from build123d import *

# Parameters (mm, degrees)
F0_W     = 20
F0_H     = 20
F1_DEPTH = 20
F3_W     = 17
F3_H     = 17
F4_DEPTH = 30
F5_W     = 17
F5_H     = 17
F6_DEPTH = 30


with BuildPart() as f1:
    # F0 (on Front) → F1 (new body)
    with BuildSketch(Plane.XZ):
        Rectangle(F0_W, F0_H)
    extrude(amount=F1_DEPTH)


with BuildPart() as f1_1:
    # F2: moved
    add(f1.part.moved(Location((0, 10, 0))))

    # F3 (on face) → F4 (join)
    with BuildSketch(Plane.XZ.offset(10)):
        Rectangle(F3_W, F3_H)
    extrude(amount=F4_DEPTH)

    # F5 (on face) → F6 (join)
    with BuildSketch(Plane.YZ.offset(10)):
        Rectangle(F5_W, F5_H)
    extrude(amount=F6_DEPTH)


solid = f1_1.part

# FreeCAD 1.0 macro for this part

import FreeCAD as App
import Part
import Sketcher
from FreeCAD import Vector
Q = App.Units.Quantity

doc = App.newDocument("Part")
body = doc.addObject("PartDesign::Body", "Body")

# Sketch on XZ plane
sketch1 = body.newObject("Sketcher::SketchObject", "Sketch")
sketch1.AttachmentSupport = (doc.getObject("XZ_Plane"), [""])
sketch1.MapMode = "FlatFace"
sketch1.addGeometry([
    Part.LineSegment(Vector(-10, 10, 0), Vector(-10, -10, 0)),
    Part.LineSegment(Vector(-10, -10, 0), Vector(10, -10, 0)),
    Part.LineSegment(Vector(10, -10, 0), Vector(10, 10, 0)),
    Part.LineSegment(Vector(10, 10, 0), Vector(-10, 10, 0)),
], False)
sketch1.addConstraint([
    Sketcher.Constraint("Coincident", 0, 2, 1, 1),
    Sketcher.Constraint("Coincident", 1, 2, 2, 1),
    Sketcher.Constraint("Coincident", 2, 2, 3, 1),
    Sketcher.Constraint("Coincident", 3, 2, 0, 1),
    Sketcher.Constraint("Vertical", 0),
    Sketcher.Constraint("Horizontal", 1),
    Sketcher.Constraint("Vertical", 2),
    Sketcher.Constraint("Horizontal", 3),
    Sketcher.Constraint("Symmetric", 0, 2, 2, 2, -1, 1),
    Sketcher.Constraint("Equal", 3, 0),
    Sketcher.Constraint("DistanceX", 1, 1, 1, 2, Q("20 mm")),
])
pad1 = body.newObject("PartDesign::Pad", "Pad")
pad1.Profile = sketch1
pad1.Length = 20
body2 = doc.addObject("PartDesign::Body", "Body001")
doc.recompute()

body.Placement = App.Placement(Vector(0, 10, 0), App.Rotation(Vector(0, 0, 1), 0))
boolean = body2.newObject("PartDesign::Boolean", "Boolean")
boolean.Type = "Fuse"
boolean.addObjects([body])

# Sketch on XZ plane
sketch2 = body2.newObject("Sketcher::SketchObject", "Sketch001")
sketch2.AttachmentSupport = (doc.getObject("XZ_Plane001"), [""])
sketch2.MapMode = "FlatFace"
sketch2.AttachmentOffset = App.Placement(Vector(0, 0, 10), App.Rotation())
sketch2.addGeometry([
    Part.LineSegment(Vector(-8, 8, 0), Vector(-8, -8, 0)),
    Part.LineSegment(Vector(-8, -8, 0), Vector(8, -8, 0)),
    Part.LineSegment(Vector(8, -8, 0), Vector(8, 8, 0)),
    Part.LineSegment(Vector(8, 8, 0), Vector(-8, 8, 0)),
], False)
sketch2.addConstraint([
    Sketcher.Constraint("Coincident", 0, 2, 1, 1),
    Sketcher.Constraint("Coincident", 1, 2, 2, 1),
    Sketcher.Constraint("Coincident", 2, 2, 3, 1),
    Sketcher.Constraint("Coincident", 3, 2, 0, 1),
    Sketcher.Constraint("Vertical", 0),
    Sketcher.Constraint("Horizontal", 1),
    Sketcher.Constraint("Vertical", 2),
    Sketcher.Constraint("Horizontal", 3),
    Sketcher.Constraint("Symmetric", 0, 2, 2, 2, -1, 1),
    Sketcher.Constraint("Equal", 3, 0),
    Sketcher.Constraint("DistanceX", 1, 1, 1, 2, Q("17 mm")),
])
pad2 = body2.newObject("PartDesign::Pad", "Pad001")
pad2.Profile = sketch2
pad2.Length = 30

# Sketch on YZ plane
sketch3 = body2.newObject("Sketcher::SketchObject", "Sketch002")
sketch3.AttachmentSupport = (doc.getObject("YZ_Plane001"), [""])
sketch3.MapMode = "FlatFace"
sketch3.AttachmentOffset = App.Placement(Vector(0, 0, 10), App.Rotation())
sketch3.addGeometry([
    Part.LineSegment(Vector(-8, 8, 0), Vector(-8, -8, 0)),
    Part.LineSegment(Vector(-8, -8, 0), Vector(8, -8, 0)),
    Part.LineSegment(Vector(8, -8, 0), Vector(8, 8, 0)),
    Part.LineSegment(Vector(8, 8, 0), Vector(-8, 8, 0)),
], False)
sketch3.addConstraint([
    Sketcher.Constraint("Coincident", 0, 2, 1, 1),
    Sketcher.Constraint("Coincident", 1, 2, 2, 1),
    Sketcher.Constraint("Coincident", 2, 2, 3, 1),
    Sketcher.Constraint("Coincident", 3, 2, 0, 1),
    Sketcher.Constraint("Vertical", 0),
    Sketcher.Constraint("Horizontal", 1),
    Sketcher.Constraint("Vertical", 2),
    Sketcher.Constraint("Horizontal", 3),
    Sketcher.Constraint("Symmetric", 0, 2, 2, 2, -1, 1),
    Sketcher.Constraint("Equal", 3, 0),
    Sketcher.Constraint("DistanceX", 1, 1, 1, 2, Q("17 mm")),
])
pad3 = body2.newObject("PartDesign::Pad", "Pad002")
pad3.Profile = sketch3
pad3.Length = 30

doc.recompute()
